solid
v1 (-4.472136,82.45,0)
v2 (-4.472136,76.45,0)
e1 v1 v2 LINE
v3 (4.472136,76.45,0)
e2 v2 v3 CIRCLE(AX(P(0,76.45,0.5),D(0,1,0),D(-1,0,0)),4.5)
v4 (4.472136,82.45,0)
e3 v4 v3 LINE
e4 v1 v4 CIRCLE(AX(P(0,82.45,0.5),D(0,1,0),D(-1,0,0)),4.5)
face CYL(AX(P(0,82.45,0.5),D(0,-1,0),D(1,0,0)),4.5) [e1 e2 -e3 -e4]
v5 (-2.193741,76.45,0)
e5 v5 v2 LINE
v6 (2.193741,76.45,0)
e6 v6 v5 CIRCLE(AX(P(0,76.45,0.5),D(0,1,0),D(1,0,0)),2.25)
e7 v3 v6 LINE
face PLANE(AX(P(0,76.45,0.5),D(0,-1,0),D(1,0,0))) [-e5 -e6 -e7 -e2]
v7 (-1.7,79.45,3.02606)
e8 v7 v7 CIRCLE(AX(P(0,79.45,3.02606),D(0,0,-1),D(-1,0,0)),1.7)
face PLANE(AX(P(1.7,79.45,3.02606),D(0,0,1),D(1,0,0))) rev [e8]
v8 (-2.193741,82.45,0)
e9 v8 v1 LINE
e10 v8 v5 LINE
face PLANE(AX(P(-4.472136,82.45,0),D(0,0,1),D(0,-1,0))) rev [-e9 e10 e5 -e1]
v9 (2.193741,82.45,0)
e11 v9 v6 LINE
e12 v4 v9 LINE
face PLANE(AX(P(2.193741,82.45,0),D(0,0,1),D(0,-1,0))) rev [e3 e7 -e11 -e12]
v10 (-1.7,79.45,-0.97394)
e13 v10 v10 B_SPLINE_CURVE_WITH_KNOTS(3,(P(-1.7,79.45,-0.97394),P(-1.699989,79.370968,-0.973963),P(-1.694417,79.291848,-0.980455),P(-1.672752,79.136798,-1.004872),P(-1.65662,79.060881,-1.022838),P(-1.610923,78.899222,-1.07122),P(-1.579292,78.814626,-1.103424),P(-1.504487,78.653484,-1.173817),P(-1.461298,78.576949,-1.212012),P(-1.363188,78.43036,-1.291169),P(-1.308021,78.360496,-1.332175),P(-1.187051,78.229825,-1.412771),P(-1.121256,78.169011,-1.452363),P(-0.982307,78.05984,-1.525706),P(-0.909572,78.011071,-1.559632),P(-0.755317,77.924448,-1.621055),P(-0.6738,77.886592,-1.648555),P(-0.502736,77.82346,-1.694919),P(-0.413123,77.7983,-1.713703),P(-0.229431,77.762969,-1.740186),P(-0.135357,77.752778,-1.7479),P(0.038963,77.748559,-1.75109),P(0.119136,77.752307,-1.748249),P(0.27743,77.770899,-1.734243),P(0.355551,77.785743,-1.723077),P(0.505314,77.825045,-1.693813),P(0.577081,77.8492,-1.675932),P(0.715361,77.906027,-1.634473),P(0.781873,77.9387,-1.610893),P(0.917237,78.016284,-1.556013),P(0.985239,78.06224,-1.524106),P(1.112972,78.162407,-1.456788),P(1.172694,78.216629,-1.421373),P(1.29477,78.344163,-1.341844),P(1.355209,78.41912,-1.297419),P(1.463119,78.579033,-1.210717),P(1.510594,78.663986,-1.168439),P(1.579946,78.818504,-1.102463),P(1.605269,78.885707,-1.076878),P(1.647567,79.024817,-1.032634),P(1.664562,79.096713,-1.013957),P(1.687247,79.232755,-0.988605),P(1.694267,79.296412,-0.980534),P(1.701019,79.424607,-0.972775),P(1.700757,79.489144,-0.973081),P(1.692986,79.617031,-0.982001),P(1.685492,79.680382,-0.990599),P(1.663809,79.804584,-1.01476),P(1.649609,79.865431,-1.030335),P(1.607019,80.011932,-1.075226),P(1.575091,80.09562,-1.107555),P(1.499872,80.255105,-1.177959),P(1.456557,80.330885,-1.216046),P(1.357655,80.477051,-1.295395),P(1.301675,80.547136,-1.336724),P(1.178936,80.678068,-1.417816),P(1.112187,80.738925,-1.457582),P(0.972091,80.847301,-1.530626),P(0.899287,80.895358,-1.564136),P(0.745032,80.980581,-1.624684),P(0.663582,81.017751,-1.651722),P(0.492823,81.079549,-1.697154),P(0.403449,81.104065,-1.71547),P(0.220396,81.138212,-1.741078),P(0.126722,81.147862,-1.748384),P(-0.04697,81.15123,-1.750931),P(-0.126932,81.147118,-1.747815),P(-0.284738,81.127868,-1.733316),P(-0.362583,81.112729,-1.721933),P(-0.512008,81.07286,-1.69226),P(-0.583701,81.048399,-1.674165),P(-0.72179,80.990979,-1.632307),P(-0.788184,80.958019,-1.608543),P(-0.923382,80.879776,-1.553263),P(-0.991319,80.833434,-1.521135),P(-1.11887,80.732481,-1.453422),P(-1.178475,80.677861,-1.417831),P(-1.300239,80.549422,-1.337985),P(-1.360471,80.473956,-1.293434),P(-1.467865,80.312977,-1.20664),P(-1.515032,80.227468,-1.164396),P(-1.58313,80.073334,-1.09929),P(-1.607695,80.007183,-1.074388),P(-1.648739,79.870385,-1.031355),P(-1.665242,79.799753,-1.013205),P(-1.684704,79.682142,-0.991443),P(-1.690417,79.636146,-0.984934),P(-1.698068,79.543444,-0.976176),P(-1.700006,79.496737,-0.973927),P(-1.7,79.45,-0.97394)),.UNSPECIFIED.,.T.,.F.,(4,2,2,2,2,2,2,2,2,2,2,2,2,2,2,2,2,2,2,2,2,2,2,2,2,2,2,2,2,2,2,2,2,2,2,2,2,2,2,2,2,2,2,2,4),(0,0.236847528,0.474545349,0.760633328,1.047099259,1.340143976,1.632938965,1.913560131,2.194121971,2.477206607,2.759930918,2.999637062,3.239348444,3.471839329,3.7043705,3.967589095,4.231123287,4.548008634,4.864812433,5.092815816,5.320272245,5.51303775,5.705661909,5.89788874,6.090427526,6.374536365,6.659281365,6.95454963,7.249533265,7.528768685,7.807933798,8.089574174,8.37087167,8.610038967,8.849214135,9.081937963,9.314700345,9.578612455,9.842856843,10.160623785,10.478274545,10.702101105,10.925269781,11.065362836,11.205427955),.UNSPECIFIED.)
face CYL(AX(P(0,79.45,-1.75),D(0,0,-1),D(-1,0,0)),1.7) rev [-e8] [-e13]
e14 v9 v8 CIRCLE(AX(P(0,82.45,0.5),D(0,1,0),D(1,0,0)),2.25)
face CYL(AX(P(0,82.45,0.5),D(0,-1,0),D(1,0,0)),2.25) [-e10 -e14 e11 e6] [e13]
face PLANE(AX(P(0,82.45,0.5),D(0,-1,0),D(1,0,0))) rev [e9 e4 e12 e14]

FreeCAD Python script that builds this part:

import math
import FreeCAD as App
import Part
import Sketcher


def add_polygon(sketch, points):
    """Adds a closed chain of lines whose ends are joined by coincident constraints."""
    first, n = sketch.GeometryCount, len(points)
    for a, b in zip(points, points[1:] + points[:1]):
        sketch.addGeometry(Part.LineSegment(App.Vector(*a, 0), App.Vector(*b, 0)), False)
    for i in range(n):
        sketch.addConstraint(Sketcher.Constraint("Coincident", first + i, 2, first + (i + 1) % n, 1))

doc = App.newDocument("Part")
params = doc.addObject("Spreadsheet::Sheet", "Params")
for row, (alias, value) in enumerate([
    ("sketch1_radius", "4.5 mm"),
    ("sketch1_radius2", "2.25 mm"),
    ("pad1_length", "6 mm"),
    ("sketch2_width", "1.7 mm"),
    ("groove_angle", "360 deg"),
], start=1):
    params.set(f"A{row}", alias)
    params.set(f"B{row}", "=" + value)
    params.setAlias(f"B{row}", alias)

body = doc.addObject("PartDesign::Body", "Body")

# Sketch on XZ plane
sketch1 = body.newObject("Sketcher::SketchObject", "Sketch")
sketch1.AttachmentSupport = (doc.getObject("XZ_Plane"), [""])
sketch1.MapMode = "FlatFace"
sketch1.AttachmentOffset = App.Placement(App.Vector(0, 0, -76.45), App.Rotation())
sketch1.addGeometry(Part.LineSegment(App.Vector(-2.193741, 0, 0), App.Vector(-4.472136, 0, 0)), False)
sketch1.addGeometry(Part.ArcOfCircle(Part.Circle(App.Vector(0, 0.5, 0), App.Vector(0, 0, 1), 4.5), math.radians(-6.37937), math.radians(186.37937)), False)
sketch1.addGeometry(Part.LineSegment(App.Vector(4.472136, 0, 0), App.Vector(2.193741, 0, 0)), False)
sketch1.addGeometry(Part.ArcOfCircle(Part.Circle(App.Vector(0, 0.5, 0), App.Vector(0, 0, 1), 2.25), math.radians(-167.160412), math.radians(-12.839588)), False)
sketch1.addConstraint(Sketcher.Constraint("Coincident", 0, 2, 1, 2))
sketch1.addConstraint(Sketcher.Constraint("Coincident", 1, 1, 2, 1))
sketch1.addConstraint(Sketcher.Constraint("Coincident", 2, 2, 3, 2))
sketch1.addConstraint(Sketcher.Constraint("Coincident", 3, 1, 0, 1))
sketch1.addConstraint(Sketcher.Constraint("Horizontal", 0))
sketch1.addConstraint(Sketcher.Constraint("Horizontal", 2))
sketch1.addConstraint(Sketcher.Constraint("Coincident", 3, 3, 1, 3))
sketch1.addConstraint(Sketcher.Constraint("Symmetric", 0, 2, 1, 1, -1, 1))
sketch1.addConstraint(Sketcher.Constraint("PointOnObject", 1, 3, -2))
sketch1.addConstraint(Sketcher.Constraint("Radius", 1, 4.5))
sketch1.addConstraint(Sketcher.Constraint("Radius", 3, 2.25))
sketch1.addConstraint(Sketcher.Constraint("DistanceY", -1, 1, 1, 3, 0.5))
sketch1.setExpression("Constraints[9]", "Params.sketch1_radius")
sketch1.setExpression("Constraints[10]", "Params.sketch1_radius2")
pad1 = body.newObject("PartDesign::Pad", "Pad")
pad1.Profile = sketch1
pad1.setExpression("Length", "Params.pad1_length")
pad1.Reversed = True

# Sketch on XZ plane
sketch2 = body.newObject("Sketcher::SketchObject", "Sketch001")
sketch2.AttachmentSupport = (doc.getObject("XZ_Plane"), [""])
sketch2.MapMode = "FlatFace"
sketch2.AttachmentOffset = App.Placement(App.Vector(0, 0, -79.45), App.Rotation())
add_polygon(sketch2, [(1.7, 3.02606), (0, 3.02606), (0, -1.9), (1.7, -1.9)])  # lines 0-3
sketch2.addConstraint(Sketcher.Constraint("Horizontal", 0))
sketch2.addConstraint(Sketcher.Constraint("Vertical", 1))
sketch2.addConstraint(Sketcher.Constraint("Horizontal", 2))
sketch2.addConstraint(Sketcher.Constraint("Vertical", 3))
sketch2.addConstraint(Sketcher.Constraint("PointOnObject", 0, 2, -2))
sketch2.addConstraint(Sketcher.Constraint("DistanceX", 0, 2, 0, 1, 1.7))
sketch2.addConstraint(Sketcher.Constraint("DistanceY", 1, 2, -1, 1, 1.9))
sketch2.addConstraint(Sketcher.Constraint("DistanceY", 1, 2, 1, 1, 4.92606))
sketch2.setExpression("Constraints[9]", "Params.sketch2_width")
groove = body.newObject("PartDesign::Groove", "Groove")
groove.Profile = sketch2
groove.ReferenceAxis = (sketch2, ["V_Axis"])
groove.setExpression("Angle", "Params.groove_angle")

doc.recompute()
